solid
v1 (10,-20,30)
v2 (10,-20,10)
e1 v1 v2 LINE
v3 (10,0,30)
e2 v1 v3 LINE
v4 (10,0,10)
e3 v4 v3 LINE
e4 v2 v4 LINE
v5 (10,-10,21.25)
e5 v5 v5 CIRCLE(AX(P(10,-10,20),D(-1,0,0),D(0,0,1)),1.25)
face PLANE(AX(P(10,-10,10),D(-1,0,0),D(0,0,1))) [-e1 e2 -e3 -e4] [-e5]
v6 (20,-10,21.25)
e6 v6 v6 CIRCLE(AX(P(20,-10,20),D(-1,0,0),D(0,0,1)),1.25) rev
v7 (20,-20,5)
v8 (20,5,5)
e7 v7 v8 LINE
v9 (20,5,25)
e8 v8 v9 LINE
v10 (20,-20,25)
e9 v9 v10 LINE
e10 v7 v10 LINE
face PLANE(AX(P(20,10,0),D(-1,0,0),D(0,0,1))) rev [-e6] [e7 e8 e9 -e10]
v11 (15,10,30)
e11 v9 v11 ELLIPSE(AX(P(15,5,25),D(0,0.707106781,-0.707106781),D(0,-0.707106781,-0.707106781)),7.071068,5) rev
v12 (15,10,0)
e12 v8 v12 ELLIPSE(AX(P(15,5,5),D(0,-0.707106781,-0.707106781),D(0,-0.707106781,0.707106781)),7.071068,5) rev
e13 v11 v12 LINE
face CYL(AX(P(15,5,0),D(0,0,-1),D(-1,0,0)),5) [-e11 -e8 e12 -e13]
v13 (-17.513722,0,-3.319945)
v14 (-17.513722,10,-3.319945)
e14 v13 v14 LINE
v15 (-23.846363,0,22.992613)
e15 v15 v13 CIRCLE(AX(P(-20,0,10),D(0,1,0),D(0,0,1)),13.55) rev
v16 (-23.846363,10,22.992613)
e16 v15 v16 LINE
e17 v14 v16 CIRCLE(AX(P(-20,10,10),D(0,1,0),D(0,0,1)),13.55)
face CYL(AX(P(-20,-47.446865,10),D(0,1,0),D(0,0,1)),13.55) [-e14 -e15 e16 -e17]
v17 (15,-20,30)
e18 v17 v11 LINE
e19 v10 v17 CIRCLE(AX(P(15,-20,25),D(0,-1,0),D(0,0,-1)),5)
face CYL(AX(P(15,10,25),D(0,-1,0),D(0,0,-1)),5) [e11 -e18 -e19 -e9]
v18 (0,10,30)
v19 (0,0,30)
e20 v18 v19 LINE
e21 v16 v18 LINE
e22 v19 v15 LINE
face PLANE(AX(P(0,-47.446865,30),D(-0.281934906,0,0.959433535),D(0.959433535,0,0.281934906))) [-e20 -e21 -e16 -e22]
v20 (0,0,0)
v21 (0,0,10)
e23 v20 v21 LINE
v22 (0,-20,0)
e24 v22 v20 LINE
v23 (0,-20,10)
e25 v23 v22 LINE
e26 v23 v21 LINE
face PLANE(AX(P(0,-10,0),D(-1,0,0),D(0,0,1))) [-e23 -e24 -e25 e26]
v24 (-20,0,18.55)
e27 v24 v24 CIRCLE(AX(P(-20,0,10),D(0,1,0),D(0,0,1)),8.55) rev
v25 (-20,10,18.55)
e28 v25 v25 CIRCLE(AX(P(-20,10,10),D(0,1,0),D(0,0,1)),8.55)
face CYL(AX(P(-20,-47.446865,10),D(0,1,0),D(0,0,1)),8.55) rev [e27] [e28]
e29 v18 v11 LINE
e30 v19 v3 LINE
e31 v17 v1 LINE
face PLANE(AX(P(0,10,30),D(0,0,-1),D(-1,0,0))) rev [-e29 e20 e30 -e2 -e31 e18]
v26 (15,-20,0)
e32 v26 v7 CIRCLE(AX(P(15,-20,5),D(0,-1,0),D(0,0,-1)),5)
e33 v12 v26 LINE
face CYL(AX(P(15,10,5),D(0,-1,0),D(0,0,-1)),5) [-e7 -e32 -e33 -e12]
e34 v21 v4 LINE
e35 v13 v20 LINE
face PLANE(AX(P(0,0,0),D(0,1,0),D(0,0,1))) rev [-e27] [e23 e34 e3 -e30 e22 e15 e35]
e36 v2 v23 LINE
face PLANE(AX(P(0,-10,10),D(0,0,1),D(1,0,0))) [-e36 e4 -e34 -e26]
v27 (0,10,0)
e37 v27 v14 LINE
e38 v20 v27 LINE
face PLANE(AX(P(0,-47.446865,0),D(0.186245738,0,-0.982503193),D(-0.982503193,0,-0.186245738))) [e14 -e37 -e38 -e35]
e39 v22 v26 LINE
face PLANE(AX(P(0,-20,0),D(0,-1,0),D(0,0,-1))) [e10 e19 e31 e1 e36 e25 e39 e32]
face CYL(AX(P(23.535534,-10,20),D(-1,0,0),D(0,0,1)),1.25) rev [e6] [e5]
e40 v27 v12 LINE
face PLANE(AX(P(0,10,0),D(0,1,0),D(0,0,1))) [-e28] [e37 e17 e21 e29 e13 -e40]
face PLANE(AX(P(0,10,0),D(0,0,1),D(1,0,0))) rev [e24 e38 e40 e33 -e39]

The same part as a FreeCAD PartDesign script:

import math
import FreeCAD as App
import Part
import Sketcher
Q = App.Units.Quantity


def edges_at(feature, points):
    """Names of the edges that pass closest to the given points."""
    edges = feature.Shape.Edges
    near = lambda p: min(range(len(edges)), key=lambda i: edges[i].distToShape(Part.Vertex(*p))[0])
    return sorted({f"Edge{near(p) + 1}" for p in points})


def add_polygon(sketch, points):
    """Adds a closed chain of lines whose ends are joined by coincident constraints."""
    first, n = sketch.GeometryCount, len(points)
    for a, b in zip(points, points[1:] + points[:1]):
        sketch.addGeometry(Part.LineSegment(App.Vector(*a, 0), App.Vector(*b, 0)), False)
    for i in range(n):
        sketch.addConstraint(Sketcher.Constraint("Coincident", first + i, 2, first + (i + 1) % n, 1))

doc = App.newDocument("Part")
params = doc.addObject("Spreadsheet::Sheet", "Params")
for row, (alias, value) in enumerate([
    ("sketch1_width", "20 mm"),
    ("sketch1_height", "30 mm"),
    ("pad1_length", "10 mm"),
    ("sketch2_width", "10 mm"),
    ("pad2_length", "10 mm"),
    ("sketch3_diameter", "17.1 mm"),
    ("sketch3_height", "30 mm"),
    ("sketch3_radius", "13.55 mm"),
    ("pad3_length", "10 mm"),
    ("sketch4_width", "20 mm"),
    ("pocket1_length", "10 mm"),
    ("sketch5_width", "20 mm"),
    ("pad4_length", "10 mm"),
    ("sketch6_diameter", "2.5 mm"),
    ("pocket2_length", "10 mm"),
    ("fillet_radius", "5 mm"),
], start=1):
    params.set(f"A{row}", alias)
    params.set(f"B{row}", "=" + value)
    params.setAlias(f"B{row}", alias)

body = doc.addObject("PartDesign::Body", "Body")

# Sketch on XZ plane
sketch1 = doc.addObject("Sketcher::SketchObject", "Sketch")
body.addObject(sketch1)
sketch1.AttachmentSupport = (doc.XZ_Plane, [""])
sketch1.MapMode = "FlatFace"
add_polygon(sketch1, [(0, 0), (0, 30), (20, 30), (20, 0)])  # lines 0-3
sketch1.addConstraint([
    Sketcher.Constraint("Vertical", 0),
    Sketcher.Constraint("Horizontal", 1),
    Sketcher.Constraint("Vertical", 2),
    Sketcher.Constraint("Horizontal", 3),
    Sketcher.Constraint("Coincident", 3, 2, -1, 1),
    Sketcher.Constraint("DistanceX", 1, 1, 1, 2, Q("20 mm")),
    Sketcher.Constraint("DistanceY", 0, 1, 0, 2, Q("30 mm")),
])
sketch1.setExpression("Constraints[9]", "Params.sketch1_width")
sketch1.setExpression("Constraints[10]", "Params.sketch1_height")
pad1 = doc.addObject("PartDesign::Pad", "Pad")
body.addObject(pad1)
pad1.Profile = sketch1
pad1.setExpression("Length", "Params.pad1_length")
pad1.Reversed = True

# Sketch on XZ plane
sketch2 = doc.addObject("Sketcher::SketchObject", "Sketch001")
body.addObject(sketch2)
sketch2.AttachmentSupport = (doc.XZ_Plane, [""])
sketch2.MapMode = "FlatFace"
sketch2.AttachmentOffset = App.Placement(App.Vector(0, 0, -10), App.Rotation())
add_polygon(sketch2, [(0, 0), (0, 10), (10, 10), (10, 30), (20, 30), (20, 0)])  # lines 0-5
sketch2.addConstraint([
    Sketcher.Constraint("Vertical", 0),
    Sketcher.Constraint("Horizontal", 1),
    Sketcher.Constraint("Vertical", 2),
    Sketcher.Constraint("Horizontal", 3),
    Sketcher.Constraint("Vertical", 4),
    Sketcher.Constraint("Horizontal", 5),
    Sketcher.Constraint("Coincident", 5, 2, -1, 1),
    Sketcher.Constraint("Equal", 1, 3),
    Sketcher.Constraint("Equal", 3, 0),
    Sketcher.Constraint("Equal", 5, 2),
    Sketcher.Constraint("DistanceX", 1, 1, 1, 2, Q("10 mm")),
])
sketch2.setExpression("Constraints[16]", "Params.sketch2_width")
pad2 = doc.addObject("PartDesign::Pad", "Pad001")
body.addObject(pad2)
pad2.Profile = sketch2
pad2.setExpression("Length", "Params.pad2_length")
pad2.Reversed = True

# Sketch on XZ plane
sketch3 = doc.addObject("Sketcher::SketchObject", "Sketch002")
body.addObject(sketch3)
sketch3.AttachmentSupport = (doc.XZ_Plane, [""])
sketch3.MapMode = "FlatFace"
sketch3.AttachmentOffset = App.Placement(App.Vector(0, 0, -10), App.Rotation())
sketch3.addGeometry([
    Part.LineSegment(App.Vector(0, 0, 0), App.Vector(-18, -3, 0)),  # 0
    Part.ArcOfCircle(Part.Circle(App.Vector(-20, 10, 0), App.Vector(0, 0, 1), 14), math.radians(106), math.radians(281)),  # 1
    Part.LineSegment(App.Vector(-24, 23, 0), App.Vector(0, 30, 0)),  # 2
    Part.LineSegment(App.Vector(0, 30, 0), App.Vector(0, 0, 0)),  # 3
    Part.Circle(App.Vector(-20, 10, 0), App.Vector(0, 0, 1), 9),  # 4
], False)
sketch3.addConstraint([
    Sketcher.Constraint("Coincident", 0, 2, 1, 2),
    Sketcher.Constraint("Coincident", 1, 1, 2, 1),
    Sketcher.Constraint("Coincident", 2, 2, 3, 1),
    Sketcher.Constraint("Coincident", 3, 2, 0, 1),
    Sketcher.Constraint("Vertical", 3),
    Sketcher.Constraint("Coincident", 3, 2, -1, 1),
    Sketcher.Constraint("Coincident", 4, 3, 1, 3),
    Sketcher.Constraint("Diameter", 4, Q("17.1 mm")),
    Sketcher.Constraint("DistanceY", 3, 2, 3, 1, Q("30 mm")),
    Sketcher.Constraint("Radius", 1, Q("13.55 mm")),
    Sketcher.Constraint("DistanceX", 1, 3, -1, 1, Q("20 mm")),
    Sketcher.Constraint("DistanceY", -1, 1, 1, 3, Q("10 mm")),
    Sketcher.Constraint("DistanceX", 1, 1, 0, 2, Q("6.33264 mm")),
    Sketcher.Constraint("Distance", 0, Q("17.825614 mm")),
])
sketch3.setExpression("Constraints[7]", "Params.sketch3_diameter")
sketch3.setExpression("Constraints[8]", "Params.sketch3_height")
sketch3.setExpression("Constraints[9]", "Params.sketch3_radius")
pad3 = doc.addObject("PartDesign::Pad", "Pad002")
body.addObject(pad3)
pad3.Profile = sketch3
pad3.setExpression("Length", "Params.pad3_length")
doc.recompute()

datumplane = doc.addObject("PartDesign::Plane", "DatumPlane")
body.addObject(datumplane)
datumplane.AttachmentSupport = (doc.XZ_Plane, [""])
datumplane.MapMode = "FlatFace"
datumplane.AttachmentOffset = App.Placement(App.Vector(0, 0, -5), App.Rotation())
mirrored = doc.addObject("PartDesign::Mirrored", "Mirrored")
body.addObject(mirrored)
mirrored.Originals = [pad2]
mirrored.MirrorPlane = (datumplane, [""])
body.Tip = mirrored

# Sketch on XZ plane
sketch4 = doc.addObject("Sketcher::SketchObject", "Sketch003")
body.addObject(sketch4)
sketch4.AttachmentSupport = (doc.XZ_Plane, [""])
sketch4.MapMode = "FlatFace"
sketch4.AttachmentOffset = App.Placement(App.Vector(0, 0, -20), App.Rotation())
add_polygon(sketch4, [(20, 0), (0, 0), (0, 10), (10, 10), (10, 30), (20, 30)])  # lines 0-5
sketch4.addConstraint([
    Sketcher.Constraint("Horizontal", 0),
    Sketcher.Constraint("Vertical", 1),
    Sketcher.Constraint("Horizontal", 2),
    Sketcher.Constraint("Vertical", 3),
    Sketcher.Constraint("Horizontal", 4),
    Sketcher.Constraint("Vertical", 5),
    Sketcher.Constraint("Coincident", 0, 2, -1, 1),
    Sketcher.Constraint("Equal", 2, 4),
    Sketcher.Constraint("Equal", 4, 1),
    Sketcher.Constraint("Equal", 0, 3),
    Sketcher.Constraint("DistanceX", 0, 2, 0, 1, Q("20 mm")),
])
sketch4.setExpression("Constraints[16]", "Params.sketch4_width")
pocket1 = doc.addObject("PartDesign::Pocket", "Pocket")
body.addObject(pocket1)
pocket1.Profile = sketch4
pocket1.setExpression("Length", "Params.pocket1_length")
pocket1.Reversed = True

# Sketch on XZ plane
sketch5 = doc.addObject("Sketcher::SketchObject", "Sketch004")
body.addObject(sketch5)
sketch5.AttachmentSupport = (doc.XZ_Plane, [""])
sketch5.MapMode = "FlatFace"
sketch5.AttachmentOffset = App.Placement(App.Vector(0, 0, 10), App.Rotation())
add_polygon(sketch5, [(0, 0), (20, 0), (20, 30), (10, 30), (10, 10), (0, 10)])  # lines 0-5
sketch5.addConstraint([
    Sketcher.Constraint("Horizontal", 0),
    Sketcher.Constraint("Vertical", 1),
    Sketcher.Constraint("Horizontal", 2),
    Sketcher.Constraint("Vertical", 3),
    Sketcher.Constraint("Horizontal", 4),
    Sketcher.Constraint("Vertical", 5),
    Sketcher.Constraint("Coincident", 5, 2, -1, 1),
    Sketcher.Constraint("Equal", 2, 4),
    Sketcher.Constraint("Equal", 0, 3),
    Sketcher.Constraint("Equal", 4, 5),
    Sketcher.Constraint("DistanceX", 0, 1, 0, 2, Q("20 mm")),
])
sketch5.setExpression("Constraints[16]", "Params.sketch5_width")
pad4 = doc.addObject("PartDesign::Pad", "Pad003")
body.addObject(pad4)
pad4.Profile = sketch5
pad4.setExpression("Length", "Params.pad4_length")

# Sketch on YZ plane
sketch6 = doc.addObject("Sketcher::SketchObject", "Sketch005")
body.addObject(sketch6)
sketch6.AttachmentSupport = (doc.YZ_Plane, [""])
sketch6.MapMode = "FlatFace"
sketch6.AttachmentOffset = App.Placement(App.Vector(0, 0, 10), App.Rotation())
sketch6.addGeometry(Part.Circle(App.Vector(-10, 20, 0), App.Vector(0, 0, 1), 1.2), False)
sketch6.addConstraint([
    Sketcher.Constraint("Diameter", 0, Q("2.5 mm")),
    Sketcher.Constraint("DistanceX", 0, 3, -1, 1, Q("10 mm")),
    Sketcher.Constraint("DistanceY", -1, 1, 0, 3, Q("20 mm")),
])
sketch6.setExpression("Constraints[0]", "Params.sketch6_diameter")
pocket2 = doc.addObject("PartDesign::Pocket", "Pocket001")
body.addObject(pocket2)
pocket2.Profile = sketch6
pocket2.setExpression("Length", "Params.pocket2_length")
pocket2.Reversed = True
doc.recompute()

fillet = doc.addObject("PartDesign::Fillet", "Fillet")
body.addObject(fillet)
fillet.Base = (pocket2, edges_at(pocket2, [(20, -5, 0), (20, -5, 30), (20, 10, 15)]))
fillet.setExpression("Radius", "Params.fillet_radius")

doc.recompute()
